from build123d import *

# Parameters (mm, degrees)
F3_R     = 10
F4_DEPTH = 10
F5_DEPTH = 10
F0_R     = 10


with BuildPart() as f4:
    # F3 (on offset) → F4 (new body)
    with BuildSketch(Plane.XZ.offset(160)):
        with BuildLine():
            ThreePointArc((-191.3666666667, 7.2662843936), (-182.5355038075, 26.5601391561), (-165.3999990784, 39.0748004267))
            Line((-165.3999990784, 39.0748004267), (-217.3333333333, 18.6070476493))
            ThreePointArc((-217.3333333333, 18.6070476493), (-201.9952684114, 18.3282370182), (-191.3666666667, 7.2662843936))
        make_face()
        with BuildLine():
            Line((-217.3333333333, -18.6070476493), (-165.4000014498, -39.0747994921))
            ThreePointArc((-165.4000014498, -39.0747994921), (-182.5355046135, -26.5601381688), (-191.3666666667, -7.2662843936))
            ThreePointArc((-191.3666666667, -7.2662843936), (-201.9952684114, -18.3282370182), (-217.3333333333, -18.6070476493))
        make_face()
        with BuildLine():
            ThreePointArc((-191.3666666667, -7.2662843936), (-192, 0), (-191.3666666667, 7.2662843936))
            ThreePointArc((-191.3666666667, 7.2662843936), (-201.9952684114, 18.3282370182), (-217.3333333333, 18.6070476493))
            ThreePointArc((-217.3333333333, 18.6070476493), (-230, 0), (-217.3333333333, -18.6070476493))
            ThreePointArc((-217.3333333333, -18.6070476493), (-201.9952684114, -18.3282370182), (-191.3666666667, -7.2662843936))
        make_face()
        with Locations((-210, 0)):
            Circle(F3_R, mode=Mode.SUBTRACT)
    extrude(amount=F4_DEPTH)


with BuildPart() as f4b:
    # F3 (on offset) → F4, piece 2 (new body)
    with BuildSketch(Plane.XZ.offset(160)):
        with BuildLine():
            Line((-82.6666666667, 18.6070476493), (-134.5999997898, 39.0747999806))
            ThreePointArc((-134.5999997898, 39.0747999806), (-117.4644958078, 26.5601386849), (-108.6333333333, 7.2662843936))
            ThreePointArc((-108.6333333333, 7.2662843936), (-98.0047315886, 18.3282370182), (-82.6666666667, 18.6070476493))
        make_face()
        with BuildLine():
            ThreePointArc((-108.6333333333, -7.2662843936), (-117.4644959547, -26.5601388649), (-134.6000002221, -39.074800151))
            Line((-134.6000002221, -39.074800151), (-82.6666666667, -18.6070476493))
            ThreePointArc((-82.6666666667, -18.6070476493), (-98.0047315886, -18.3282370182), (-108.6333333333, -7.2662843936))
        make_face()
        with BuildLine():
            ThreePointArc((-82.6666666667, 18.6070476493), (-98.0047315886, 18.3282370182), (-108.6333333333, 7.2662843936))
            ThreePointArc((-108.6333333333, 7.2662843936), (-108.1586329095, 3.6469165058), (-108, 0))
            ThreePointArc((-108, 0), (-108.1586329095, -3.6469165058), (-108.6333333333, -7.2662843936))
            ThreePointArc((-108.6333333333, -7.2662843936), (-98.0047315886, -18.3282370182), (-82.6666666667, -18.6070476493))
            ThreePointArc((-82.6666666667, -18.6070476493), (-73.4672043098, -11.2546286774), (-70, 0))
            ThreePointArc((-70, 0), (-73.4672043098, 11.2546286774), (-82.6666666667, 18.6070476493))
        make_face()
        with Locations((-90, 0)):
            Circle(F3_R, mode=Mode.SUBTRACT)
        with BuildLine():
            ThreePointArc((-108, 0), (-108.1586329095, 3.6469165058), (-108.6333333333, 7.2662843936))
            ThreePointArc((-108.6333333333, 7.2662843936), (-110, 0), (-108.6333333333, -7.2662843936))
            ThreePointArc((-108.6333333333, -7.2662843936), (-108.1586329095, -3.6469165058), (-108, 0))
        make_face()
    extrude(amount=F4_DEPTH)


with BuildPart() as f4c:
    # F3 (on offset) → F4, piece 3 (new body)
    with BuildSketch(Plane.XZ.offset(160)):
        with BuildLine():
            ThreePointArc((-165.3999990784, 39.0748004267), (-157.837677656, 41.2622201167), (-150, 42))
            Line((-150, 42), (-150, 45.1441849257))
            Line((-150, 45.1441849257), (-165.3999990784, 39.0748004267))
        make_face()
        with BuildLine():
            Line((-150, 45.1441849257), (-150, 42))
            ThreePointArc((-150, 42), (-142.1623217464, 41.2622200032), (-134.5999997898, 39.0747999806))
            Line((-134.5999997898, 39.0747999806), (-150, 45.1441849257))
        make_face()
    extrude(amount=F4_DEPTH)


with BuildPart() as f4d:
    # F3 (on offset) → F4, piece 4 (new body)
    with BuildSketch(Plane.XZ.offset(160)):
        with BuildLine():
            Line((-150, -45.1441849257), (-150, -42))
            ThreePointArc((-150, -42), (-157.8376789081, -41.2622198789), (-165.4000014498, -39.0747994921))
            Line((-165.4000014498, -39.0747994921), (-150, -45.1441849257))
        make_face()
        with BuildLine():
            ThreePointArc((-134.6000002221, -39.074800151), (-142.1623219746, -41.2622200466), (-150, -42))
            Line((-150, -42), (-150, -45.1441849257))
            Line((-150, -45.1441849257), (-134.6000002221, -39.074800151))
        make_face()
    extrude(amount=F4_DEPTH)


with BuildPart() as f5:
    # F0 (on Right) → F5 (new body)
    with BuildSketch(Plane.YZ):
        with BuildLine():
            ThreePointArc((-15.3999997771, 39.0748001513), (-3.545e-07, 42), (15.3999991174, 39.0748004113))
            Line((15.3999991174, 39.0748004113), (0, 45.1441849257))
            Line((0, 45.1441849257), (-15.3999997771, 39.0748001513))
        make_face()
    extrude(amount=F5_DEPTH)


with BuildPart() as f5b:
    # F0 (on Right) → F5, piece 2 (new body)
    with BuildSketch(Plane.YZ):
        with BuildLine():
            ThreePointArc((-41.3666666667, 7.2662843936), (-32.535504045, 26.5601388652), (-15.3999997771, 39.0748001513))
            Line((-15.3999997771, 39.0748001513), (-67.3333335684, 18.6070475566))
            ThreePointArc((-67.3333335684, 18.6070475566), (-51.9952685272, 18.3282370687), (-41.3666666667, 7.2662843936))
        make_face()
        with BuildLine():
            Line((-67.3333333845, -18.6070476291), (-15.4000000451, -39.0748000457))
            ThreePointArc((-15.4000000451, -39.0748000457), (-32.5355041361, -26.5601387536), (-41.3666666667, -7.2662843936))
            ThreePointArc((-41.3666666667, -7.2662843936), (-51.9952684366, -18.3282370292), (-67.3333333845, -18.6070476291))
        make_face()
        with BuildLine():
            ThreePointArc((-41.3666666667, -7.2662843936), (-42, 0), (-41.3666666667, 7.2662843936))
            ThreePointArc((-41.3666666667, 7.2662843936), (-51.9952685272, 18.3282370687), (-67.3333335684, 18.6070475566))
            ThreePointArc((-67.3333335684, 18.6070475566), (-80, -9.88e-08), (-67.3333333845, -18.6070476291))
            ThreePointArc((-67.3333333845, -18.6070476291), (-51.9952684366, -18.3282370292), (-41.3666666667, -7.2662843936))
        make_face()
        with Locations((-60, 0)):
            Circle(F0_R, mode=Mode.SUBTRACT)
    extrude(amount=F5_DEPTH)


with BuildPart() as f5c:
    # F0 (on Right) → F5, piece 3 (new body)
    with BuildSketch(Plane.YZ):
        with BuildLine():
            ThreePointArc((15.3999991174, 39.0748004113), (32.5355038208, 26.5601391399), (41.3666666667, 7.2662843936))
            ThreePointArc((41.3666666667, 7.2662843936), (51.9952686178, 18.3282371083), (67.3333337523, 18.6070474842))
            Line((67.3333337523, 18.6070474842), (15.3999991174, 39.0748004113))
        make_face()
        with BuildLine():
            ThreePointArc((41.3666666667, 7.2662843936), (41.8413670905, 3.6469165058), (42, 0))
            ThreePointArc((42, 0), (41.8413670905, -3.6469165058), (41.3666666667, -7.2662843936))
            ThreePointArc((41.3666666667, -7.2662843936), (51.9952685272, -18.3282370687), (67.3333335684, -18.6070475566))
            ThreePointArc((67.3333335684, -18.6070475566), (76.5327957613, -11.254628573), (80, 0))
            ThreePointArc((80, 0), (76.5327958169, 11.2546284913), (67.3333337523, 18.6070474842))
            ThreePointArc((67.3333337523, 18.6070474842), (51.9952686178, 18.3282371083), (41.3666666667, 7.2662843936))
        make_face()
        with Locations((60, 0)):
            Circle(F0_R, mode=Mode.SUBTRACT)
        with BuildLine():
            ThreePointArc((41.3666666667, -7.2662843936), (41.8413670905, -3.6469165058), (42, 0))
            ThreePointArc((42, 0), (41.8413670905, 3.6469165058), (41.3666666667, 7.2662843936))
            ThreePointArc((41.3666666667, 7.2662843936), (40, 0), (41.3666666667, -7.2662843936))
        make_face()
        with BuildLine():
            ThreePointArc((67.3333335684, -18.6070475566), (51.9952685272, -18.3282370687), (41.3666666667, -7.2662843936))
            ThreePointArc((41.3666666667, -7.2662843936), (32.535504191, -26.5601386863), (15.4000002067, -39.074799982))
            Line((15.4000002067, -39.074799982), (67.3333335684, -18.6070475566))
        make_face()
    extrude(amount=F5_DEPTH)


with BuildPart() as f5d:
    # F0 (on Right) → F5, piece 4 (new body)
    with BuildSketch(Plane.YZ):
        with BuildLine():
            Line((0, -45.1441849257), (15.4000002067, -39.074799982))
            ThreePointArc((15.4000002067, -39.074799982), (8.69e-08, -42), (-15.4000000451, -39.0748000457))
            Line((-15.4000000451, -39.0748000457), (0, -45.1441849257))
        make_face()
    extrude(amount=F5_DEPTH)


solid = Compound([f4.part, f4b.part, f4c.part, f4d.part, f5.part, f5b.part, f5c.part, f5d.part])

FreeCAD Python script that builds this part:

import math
import FreeCAD as App
import Part
import Sketcher

doc = App.newDocument("Part")
body = doc.addObject("PartDesign::Body", "Body")

sketch1 = body.newObject("Sketcher::SketchObject", "Sketch")
sketch1.AttachmentSupport = (doc.getObject("XZ_Plane"), [""])
sketch1.MapMode = "FlatFace"
sketch1.AttachmentOffset = App.Placement(App.Vector(0, 0, 160), App.Rotation())
sketch1.addGeometry([
    Part.ArcOfCircle(Part.Circle(App.Vector(-150, 0, 0), App.Vector(0, 0, 1), 42), math.radians(112), math.radians(170)),
    Part.LineSegment(App.Vector(-165, 39, 0), App.Vector(-217, 19, 0)),
    Part.ArcOfCircle(Part.Circle(App.Vector(-210, 0, 0), App.Vector(0, 0, 1), 20), math.radians(112), math.radians(248)),
    Part.LineSegment(App.Vector(-217, -19, 0), App.Vector(-165, -39, 0)),
    Part.ArcOfCircle(Part.Circle(App.Vector(-150, 0, 0), App.Vector(0, 0, 1), 42), math.radians(-170), math.radians(-112)),
    Part.ArcOfCircle(Part.Circle(App.Vector(-150, 0, 0), App.Vector(0, 0, 1), 42), math.radians(170.04), math.radians(189.96)),
    Part.Circle(App.Vector(-210, 0, 0), App.Vector(0, 0, 1), 10),
], False)
sketch1.addConstraint([
    Sketcher.Constraint("Tangent", 0, 1, 1, 1),
    Sketcher.Constraint("Tangent", 1, 2, 2, 1),
    Sketcher.Constraint("Tangent", 2, 2, 3, 1),
    Sketcher.Constraint("Tangent", 3, 2, 4, 2),
    Sketcher.Constraint("Tangent", 4, 1, 5, 2),
    Sketcher.Constraint("Tangent", 5, 1, 0, 2),
    Sketcher.Constraint("Coincident", 4, 3, 0, 3),
    Sketcher.Constraint("Coincident", 6, 3, 2, 3),
    Sketcher.Constraint("Symmetric", 1, 2, 2, 2, -1),
    Sketcher.Constraint("Vertical", 4, 1, 5, 1),
    Sketcher.Constraint("Diameter", 6, 20.0),
    Sketcher.Constraint("Radius", 0, 42.0),
    Sketcher.Constraint("Radius", 2, 20.0),
    Sketcher.Constraint("DistanceX", 0, 3, -1, 1, 150.0),
    Sketcher.Constraint("DistanceX", 2, 3, -1, 1, 210.0),
    Sketcher.Constraint("DistanceY", 4, 1, 5, 1, 14.532569),
])
pad1 = body.newObject("PartDesign::Pad", "Pad")
pad1.Profile = sketch1
pad1.Length = 10
body2 = doc.addObject("PartDesign::Body", "Body001")

sketch2 = body2.newObject("Sketcher::SketchObject", "Sketch001")
sketch2.AttachmentSupport = (doc.getObject("XZ_Plane001"), [""])
sketch2.MapMode = "FlatFace"
sketch2.AttachmentOffset = App.Placement(App.Vector(0, 0, 160), App.Rotation())
sketch2.addGeometry([
    Part.LineSegment(App.Vector(-83, 19, 0), App.Vector(-135, 39, 0)),
    Part.ArcOfCircle(Part.Circle(App.Vector(-150, 0, 0), App.Vector(0, 0, 1), 42), math.radians(10), math.radians(68)),
    Part.ArcOfCircle(Part.Circle(App.Vector(-90, 0, 0), App.Vector(0, 0, 1), 20), math.radians(159), math.radians(201)),
    Part.ArcOfCircle(Part.Circle(App.Vector(-150, 0, 0), App.Vector(0, 0, 1), 42), math.radians(-68), math.radians(-10)),
    Part.LineSegment(App.Vector(-135, -39, 0), App.Vector(-83, -19, 0)),
    Part.ArcOfCircle(Part.Circle(App.Vector(-90, 0, 0), App.Vector(0, 0, 1), 20), math.radians(-68), math.radians(0)),
    Part.ArcOfCircle(Part.Circle(App.Vector(-90, 0, 0), App.Vector(0, 0, 1), 20), math.radians(0), math.radians(68)),
    Part.Circle(App.Vector(-90, 0, 0), App.Vector(0, 0, 1), 10),
], False)
sketch2.addConstraint([
    Sketcher.Constraint("Tangent", 0, 2, 1, 2),
    Sketcher.Constraint("Coincident", 1, 1, 2, 1),
    Sketcher.Constraint("Coincident", 2, 2, 3, 2),
    Sketcher.Constraint("Tangent", 3, 1, 4, 1),
    Sketcher.Constraint("Tangent", 4, 2, 5, 1),
    Sketcher.Constraint("Tangent", 5, 2, 6, 1),
    Sketcher.Constraint("Tangent", 6, 2, 0, 1),
    Sketcher.Constraint("Coincident", 3, 3, 1, 3),
    Sketcher.Constraint("Coincident", 5, 3, 2, 3),
    Sketcher.Constraint("Coincident", 7, 3, 2, 3),
    Sketcher.Constraint("Equal", 1, 3),
    Sketcher.Constraint("Equal", 2, 5),
    Sketcher.Constraint("Equal", 5, 6),
    Sketcher.Constraint("Symmetric", 1, 1, 2, 2, -1),
    Sketcher.Constraint("PointOnObject", 5, 2, -1),
    Sketcher.Constraint("Diameter", 7, 20.0),
    Sketcher.Constraint("Radius", 1, 42.0),
    Sketcher.Constraint("Radius", 2, 20.0),
    Sketcher.Constraint("DistanceX", 1, 3, -1, 1, 150.0),
    Sketcher.Constraint("DistanceX", 2, 3, -1, 1, 90.0),
])
pad2 = body2.newObject("PartDesign::Pad", "Pad001")
pad2.Profile = sketch2
pad2.Length = 10
body3 = doc.addObject("PartDesign::Body", "Body002")

sketch3 = body3.newObject("Sketcher::SketchObject", "Sketch002")
sketch3.AttachmentSupport = (doc.getObject("XZ_Plane002"), [""])
sketch3.MapMode = "FlatFace"
sketch3.AttachmentOffset = App.Placement(App.Vector(0, 0, 160), App.Rotation())
sketch3.addGeometry([
    Part.ArcOfCircle(Part.Circle(App.Vector(-150, 0, 0), App.Vector(0, 0, 1), 42), math.radians(90), math.radians(112)),
    Part.ArcOfCircle(Part.Circle(App.Vector(-150, 0, 0), App.Vector(0, 0, 1), 42), math.radians(68), math.radians(90)),
    Part.LineSegment(App.Vector(-135, 39, 0), App.Vector(-150, 45, 0)),
    Part.LineSegment(App.Vector(-150, 45, 0), App.Vector(-165, 39, 0)),
], False)
sketch3.addConstraint([
    Sketcher.Constraint("Tangent", 0, 1, 1, 2),
    Sketcher.Constraint("Tangent", 1, 1, 2, 1),
    Sketcher.Constraint("Coincident", 2, 2, 3, 1),
    Sketcher.Constraint("Tangent", 3, 2, 0, 2),
    Sketcher.Constraint("Equal", 0, 1),
    Sketcher.Constraint("PointOnObject", 0, 3, -1),
    Sketcher.Constraint("Horizontal", 1, 1, 3, 2),
    Sketcher.Constraint("Vertical", 1, 3, 0, 1),
    Sketcher.Constraint("Radius", 0, 42.0),
    Sketcher.Constraint("DistanceX", 0, 3, -1, 1, 150.0),
    Sketcher.Constraint("DistanceX", 1, 1, -1, 1, 134.6),
])
pad3 = body3.newObject("PartDesign::Pad", "Pad002")
pad3.Profile = sketch3
pad3.Length = 10
body4 = doc.addObject("PartDesign::Body", "Body003")

sketch4 = body4.newObject("Sketcher::SketchObject", "Sketch003")
sketch4.AttachmentSupport = (doc.getObject("XZ_Plane003"), [""])
sketch4.MapMode = "FlatFace"
sketch4.AttachmentOffset = App.Placement(App.Vector(0, 0, 160), App.Rotation())
sketch4.addGeometry([
    Part.ArcOfCircle(Part.Circle(App.Vector(-150, 0, 0), App.Vector(0, 0, 1), 42), math.radians(-112), math.radians(-90)),
    Part.LineSegment(App.Vector(-165, -39, 0), App.Vector(-150, -45, 0)),
    Part.LineSegment(App.Vector(-150, -45, 0), App.Vector(-135, -39, 0)),
    Part.ArcOfCircle(Part.Circle(App.Vector(-150, 0, 0), App.Vector(0, 0, 1), 42), math.radians(-90), math.radians(-68)),
], False)
sketch4.addConstraint([
    Sketcher.Constraint("Tangent", 0, 1, 1, 1),
    Sketcher.Constraint("Coincident", 1, 2, 2, 1),
    Sketcher.Constraint("Tangent", 2, 2, 3, 2),
    Sketcher.Constraint("Tangent", 3, 1, 0, 2),
    Sketcher.Constraint("Equal", 0, 3),
    Sketcher.Constraint("PointOnObject", 0, 3, -1),
    Sketcher.Constraint("Horizontal", 0, 1, 2, 2),
    Sketcher.Constraint("Vertical", 1, 2, 3, 1),
    Sketcher.Constraint("Radius", 0, 42.0),
    Sketcher.Constraint("DistanceX", 0, 3, -1, 1, 150.0),
    Sketcher.Constraint("DistanceX", 0, 1, -1, 1, 165.400001),
])
pad4 = body4.newObject("PartDesign::Pad", "Pad003")
pad4.Profile = sketch4
pad4.Length = 10
body5 = doc.addObject("PartDesign::Body", "Body004")

sketch5 = body5.newObject("Sketcher::SketchObject", "Sketch004")
sketch5.AttachmentSupport = (doc.getObject("YZ_Plane004"), [""])
sketch5.MapMode = "FlatFace"
sketch5.addGeometry([
    Part.ArcOfCircle(Part.Circle(App.Vector(0, 0, 0), App.Vector(0, 0, 1), 42), math.radians(68), math.radians(112)),
    Part.LineSegment(App.Vector(15, 39, 0), App.Vector(0, 45, 0)),
    Part.LineSegment(App.Vector(0, 45, 0), App.Vector(-15, 39, 0)),
], False)
sketch5.addConstraint([
    Sketcher.Constraint("Tangent", 0, 1, 1, 1),
    Sketcher.Constraint("Coincident", 1, 2, 2, 1),
    Sketcher.Constraint("Tangent", 2, 2, 0, 2),
    Sketcher.Constraint("Coincident", 0, 3, -1, 1),
    Sketcher.Constraint("PointOnObject", 1, 2, -2),
    Sketcher.Constraint("Radius", 0, 42.0),
    Sketcher.Constraint("DistanceX", -1, 1, 0, 1, 15.399999),
])
pad5 = body5.newObject("PartDesign::Pad", "Pad004")
pad5.Profile = sketch5
pad5.Length = 10
body6 = doc.addObject("PartDesign::Body", "Body005")

sketch6 = body6.newObject("Sketcher::SketchObject", "Sketch005")
sketch6.AttachmentSupport = (doc.getObject("YZ_Plane005"), [""])
sketch6.MapMode = "FlatFace"
sketch6.addGeometry([
    Part.ArcOfCircle(Part.Circle(App.Vector(0, 0, 0), App.Vector(0, 0, 1), 42), math.radians(112), math.radians(170)),
    Part.LineSegment(App.Vector(-15, 39, 0), App.Vector(-67, 19, 0)),
    Part.ArcOfCircle(Part.Circle(App.Vector(-60, 0, 0), App.Vector(0, 0, 1), 20), math.radians(112), math.radians(248)),
    Part.LineSegment(App.Vector(-67, -19, 0), App.Vector(-15, -39, 0)),
    Part.ArcOfCircle(Part.Circle(App.Vector(0, 0, 0), App.Vector(0, 0, 1), 42), math.radians(-170), math.radians(-112)),
    Part.ArcOfCircle(Part.Circle(App.Vector(0, 0, 0), App.Vector(0, 0, 1), 42), math.radians(170.04), math.radians(189.96)),
    Part.Circle(App.Vector(-60, 0, 0), App.Vector(0, 0, 1), 10),
], False)
sketch6.addConstraint([
    Sketcher.Constraint("Tangent", 0, 1, 1, 1),
    Sketcher.Constraint("Tangent", 1, 2, 2, 1),
    Sketcher.Constraint("Tangent", 2, 2, 3, 1),
    Sketcher.Constraint("Tangent", 3, 2, 4, 2),
    Sketcher.Constraint("Tangent", 4, 1, 5, 2),
    Sketcher.Constraint("Tangent", 5, 1, 0, 2),
    Sketcher.Constraint("Coincident", 0, 3, -1, 1),
    Sketcher.Constraint("Coincident", 4, 3, -1, 1),
    Sketcher.Constraint("Coincident", 6, 3, 2, 3),
    Sketcher.Constraint("PointOnObject", 2, 3, -1),
    Sketcher.Constraint("Vertical", 4, 1, 5, 1),
    Sketcher.Constraint("Diameter", 6, 20.0),
    Sketcher.Constraint("Radius", 0, 42.0),
    Sketcher.Constraint("Radius", 2, 20.0),
    Sketcher.Constraint("DistanceX", 2, 3, -1, 1, 60.0),
    Sketcher.Constraint("DistanceY", 4, 1, 1, 2, 25.873332),
])
pad6 = body6.newObject("PartDesign::Pad", "Pad005")
pad6.Profile = sketch6
pad6.Length = 10
body7 = doc.addObject("PartDesign::Body", "Body006")

sketch7 = body7.newObject("Sketcher::SketchObject", "Sketch006")
sketch7.AttachmentSupport = (doc.getObject("YZ_Plane006"), [""])
sketch7.MapMode = "FlatFace"
sketch7.addGeometry([
    Part.ArcOfCircle(Part.Circle(App.Vector(0, 0, 0), App.Vector(0, 0, 1), 42), math.radians(10), math.radians(68)),
    Part.ArcOfCircle(Part.Circle(App.Vector(60, 0, 0), App.Vector(0, 0, 1), 20), math.radians(159), math.radians(201)),
    Part.ArcOfCircle(Part.Circle(App.Vector(0, 0, 0), App.Vector(0, 0, 1), 42), math.radians(-68), math.radians(-10)),
    Part.LineSegment(App.Vector(15, -39, 0), App.Vector(67, -19, 0)),
    Part.ArcOfCircle(Part.Circle(App.Vector(60, 0, 0), App.Vector(0, 0, 1), 20), math.radians(-68), math.radians(0)),
    Part.ArcOfCircle(Part.Circle(App.Vector(60, 0, 0), App.Vector(0, 0, 1), 20), math.radians(0), math.radians(68)),
    Part.LineSegment(App.Vector(67, 19, 0), App.Vector(15, 39, 0)),
    Part.Circle(App.Vector(60, 0, 0), App.Vector(0, 0, 1), 10),
], False)
sketch7.addConstraint([
    Sketcher.Constraint("Coincident", 0, 1, 1, 1),
    Sketcher.Constraint("Coincident", 1, 2, 2, 2),
    Sketcher.Constraint("Tangent", 2, 1, 3, 1),
    Sketcher.Constraint("Tangent", 3, 2, 4, 1),
    Sketcher.Constraint("Tangent", 4, 2, 5, 1),
    Sketcher.Constraint("Tangent", 5, 2, 6, 1),
    Sketcher.Constraint("Tangent", 6, 2, 0, 2),
    Sketcher.Constraint("Coincident", 0, 3, -1, 1),
    Sketcher.Constraint("Coincident", 2, 3, -1, 1),
    Sketcher.Constraint("Coincident", 4, 3, 1, 3),
    Sketcher.Constraint("Coincident", 7, 3, 1, 3),
    Sketcher.Constraint("Equal", 0, 2),
    Sketcher.Constraint("Equal", 1, 4),
    Sketcher.Constraint("Equal", 4, 5),
    Sketcher.Constraint("PointOnObject", 1, 3, -1),
    Sketcher.Constraint("PointOnObject", 4, 2, -1),
    Sketcher.Constraint("Diameter", 7, 20.0),
    Sketcher.Constraint("Radius", 0, 42.0),
    Sketcher.Constraint("Radius", 1, 20.0),
    Sketcher.Constraint("DistanceX", -1, 1, 1, 3, 60.0),
])
pad7 = body7.newObject("PartDesign::Pad", "Pad006")
pad7.Profile = sketch7
pad7.Length = 10
body8 = doc.addObject("PartDesign::Body", "Body007")

sketch8 = body8.newObject("Sketcher::SketchObject", "Sketch007")
sketch8.AttachmentSupport = (doc.getObject("YZ_Plane007"), [""])
sketch8.MapMode = "FlatFace"
sketch8.addGeometry([
    Part.LineSegment(App.Vector(0, -45, 0), App.Vector(15, -39, 0)),
    Part.ArcOfCircle(Part.Circle(App.Vector(0, 0, 0), App.Vector(0, 0, 1), 42), math.radians(-112), math.radians(-68)),
    Part.LineSegment(App.Vector(-15, -39, 0), App.Vector(0, -45, 0)),
], False)
sketch8.addConstraint([
    Sketcher.Constraint("Tangent", 0, 2, 1, 2),
    Sketcher.Constraint("Tangent", 1, 1, 2, 1),
    Sketcher.Constraint("Coincident", 2, 2, 0, 1),
    Sketcher.Constraint("Coincident", 1, 3, -1, 1),
    Sketcher.Constraint("PointOnObject", 2, 2, -2),
    Sketcher.Constraint("Radius", 1, 42.0),
    Sketcher.Constraint("DistanceX", -1, 1, 0, 2, 15.4),
])
pad8 = body8.newObject("PartDesign::Pad", "Pad007")
pad8.Profile = sketch8
pad8.Length = 10

doc.recompute()
